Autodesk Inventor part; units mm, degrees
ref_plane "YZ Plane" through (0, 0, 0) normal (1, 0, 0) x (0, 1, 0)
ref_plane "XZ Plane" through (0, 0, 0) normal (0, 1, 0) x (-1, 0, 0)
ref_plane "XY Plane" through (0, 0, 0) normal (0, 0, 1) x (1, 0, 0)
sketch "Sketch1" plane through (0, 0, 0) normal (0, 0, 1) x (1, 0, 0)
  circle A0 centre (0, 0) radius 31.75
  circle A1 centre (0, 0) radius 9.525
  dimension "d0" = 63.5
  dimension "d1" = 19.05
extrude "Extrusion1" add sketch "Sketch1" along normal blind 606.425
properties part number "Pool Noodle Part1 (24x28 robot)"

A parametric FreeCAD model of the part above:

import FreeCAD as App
import Part
import Sketcher

V = App.Vector
Q = App.Units.Quantity

doc = App.newDocument("Part")
body = doc.addObject("PartDesign::Body", "Body")

# Sketch on XY plane
sketch1 = body.newObject("Sketcher::SketchObject", "Sketch")
sketch1.AttachmentSupport = (doc.getObject("XY_Plane"), [""])
sketch1.MapMode = "FlatFace"
sketch1.addGeometry([
    Part.Circle(V(0, 0, 0), V(0, 0, 1), 32),
    Part.Circle(V(0, 0, 0), V(0, 0, 1), 10),
], False)
sketch1.addConstraint([
    Sketcher.Constraint("Coincident", 0, 3, -1, 1),
    Sketcher.Constraint("Coincident", 1, 3, -1, 1),
    Sketcher.Constraint("Diameter", 0, Q("2.5 in")),
    Sketcher.Constraint("Diameter", 1, Q("0.75 in")),
])
pad1 = body.newObject("PartDesign::Pad", "Pad")
pad1.Profile = sketch1
pad1.Length = Q("23.875 in")

doc.recompute()
